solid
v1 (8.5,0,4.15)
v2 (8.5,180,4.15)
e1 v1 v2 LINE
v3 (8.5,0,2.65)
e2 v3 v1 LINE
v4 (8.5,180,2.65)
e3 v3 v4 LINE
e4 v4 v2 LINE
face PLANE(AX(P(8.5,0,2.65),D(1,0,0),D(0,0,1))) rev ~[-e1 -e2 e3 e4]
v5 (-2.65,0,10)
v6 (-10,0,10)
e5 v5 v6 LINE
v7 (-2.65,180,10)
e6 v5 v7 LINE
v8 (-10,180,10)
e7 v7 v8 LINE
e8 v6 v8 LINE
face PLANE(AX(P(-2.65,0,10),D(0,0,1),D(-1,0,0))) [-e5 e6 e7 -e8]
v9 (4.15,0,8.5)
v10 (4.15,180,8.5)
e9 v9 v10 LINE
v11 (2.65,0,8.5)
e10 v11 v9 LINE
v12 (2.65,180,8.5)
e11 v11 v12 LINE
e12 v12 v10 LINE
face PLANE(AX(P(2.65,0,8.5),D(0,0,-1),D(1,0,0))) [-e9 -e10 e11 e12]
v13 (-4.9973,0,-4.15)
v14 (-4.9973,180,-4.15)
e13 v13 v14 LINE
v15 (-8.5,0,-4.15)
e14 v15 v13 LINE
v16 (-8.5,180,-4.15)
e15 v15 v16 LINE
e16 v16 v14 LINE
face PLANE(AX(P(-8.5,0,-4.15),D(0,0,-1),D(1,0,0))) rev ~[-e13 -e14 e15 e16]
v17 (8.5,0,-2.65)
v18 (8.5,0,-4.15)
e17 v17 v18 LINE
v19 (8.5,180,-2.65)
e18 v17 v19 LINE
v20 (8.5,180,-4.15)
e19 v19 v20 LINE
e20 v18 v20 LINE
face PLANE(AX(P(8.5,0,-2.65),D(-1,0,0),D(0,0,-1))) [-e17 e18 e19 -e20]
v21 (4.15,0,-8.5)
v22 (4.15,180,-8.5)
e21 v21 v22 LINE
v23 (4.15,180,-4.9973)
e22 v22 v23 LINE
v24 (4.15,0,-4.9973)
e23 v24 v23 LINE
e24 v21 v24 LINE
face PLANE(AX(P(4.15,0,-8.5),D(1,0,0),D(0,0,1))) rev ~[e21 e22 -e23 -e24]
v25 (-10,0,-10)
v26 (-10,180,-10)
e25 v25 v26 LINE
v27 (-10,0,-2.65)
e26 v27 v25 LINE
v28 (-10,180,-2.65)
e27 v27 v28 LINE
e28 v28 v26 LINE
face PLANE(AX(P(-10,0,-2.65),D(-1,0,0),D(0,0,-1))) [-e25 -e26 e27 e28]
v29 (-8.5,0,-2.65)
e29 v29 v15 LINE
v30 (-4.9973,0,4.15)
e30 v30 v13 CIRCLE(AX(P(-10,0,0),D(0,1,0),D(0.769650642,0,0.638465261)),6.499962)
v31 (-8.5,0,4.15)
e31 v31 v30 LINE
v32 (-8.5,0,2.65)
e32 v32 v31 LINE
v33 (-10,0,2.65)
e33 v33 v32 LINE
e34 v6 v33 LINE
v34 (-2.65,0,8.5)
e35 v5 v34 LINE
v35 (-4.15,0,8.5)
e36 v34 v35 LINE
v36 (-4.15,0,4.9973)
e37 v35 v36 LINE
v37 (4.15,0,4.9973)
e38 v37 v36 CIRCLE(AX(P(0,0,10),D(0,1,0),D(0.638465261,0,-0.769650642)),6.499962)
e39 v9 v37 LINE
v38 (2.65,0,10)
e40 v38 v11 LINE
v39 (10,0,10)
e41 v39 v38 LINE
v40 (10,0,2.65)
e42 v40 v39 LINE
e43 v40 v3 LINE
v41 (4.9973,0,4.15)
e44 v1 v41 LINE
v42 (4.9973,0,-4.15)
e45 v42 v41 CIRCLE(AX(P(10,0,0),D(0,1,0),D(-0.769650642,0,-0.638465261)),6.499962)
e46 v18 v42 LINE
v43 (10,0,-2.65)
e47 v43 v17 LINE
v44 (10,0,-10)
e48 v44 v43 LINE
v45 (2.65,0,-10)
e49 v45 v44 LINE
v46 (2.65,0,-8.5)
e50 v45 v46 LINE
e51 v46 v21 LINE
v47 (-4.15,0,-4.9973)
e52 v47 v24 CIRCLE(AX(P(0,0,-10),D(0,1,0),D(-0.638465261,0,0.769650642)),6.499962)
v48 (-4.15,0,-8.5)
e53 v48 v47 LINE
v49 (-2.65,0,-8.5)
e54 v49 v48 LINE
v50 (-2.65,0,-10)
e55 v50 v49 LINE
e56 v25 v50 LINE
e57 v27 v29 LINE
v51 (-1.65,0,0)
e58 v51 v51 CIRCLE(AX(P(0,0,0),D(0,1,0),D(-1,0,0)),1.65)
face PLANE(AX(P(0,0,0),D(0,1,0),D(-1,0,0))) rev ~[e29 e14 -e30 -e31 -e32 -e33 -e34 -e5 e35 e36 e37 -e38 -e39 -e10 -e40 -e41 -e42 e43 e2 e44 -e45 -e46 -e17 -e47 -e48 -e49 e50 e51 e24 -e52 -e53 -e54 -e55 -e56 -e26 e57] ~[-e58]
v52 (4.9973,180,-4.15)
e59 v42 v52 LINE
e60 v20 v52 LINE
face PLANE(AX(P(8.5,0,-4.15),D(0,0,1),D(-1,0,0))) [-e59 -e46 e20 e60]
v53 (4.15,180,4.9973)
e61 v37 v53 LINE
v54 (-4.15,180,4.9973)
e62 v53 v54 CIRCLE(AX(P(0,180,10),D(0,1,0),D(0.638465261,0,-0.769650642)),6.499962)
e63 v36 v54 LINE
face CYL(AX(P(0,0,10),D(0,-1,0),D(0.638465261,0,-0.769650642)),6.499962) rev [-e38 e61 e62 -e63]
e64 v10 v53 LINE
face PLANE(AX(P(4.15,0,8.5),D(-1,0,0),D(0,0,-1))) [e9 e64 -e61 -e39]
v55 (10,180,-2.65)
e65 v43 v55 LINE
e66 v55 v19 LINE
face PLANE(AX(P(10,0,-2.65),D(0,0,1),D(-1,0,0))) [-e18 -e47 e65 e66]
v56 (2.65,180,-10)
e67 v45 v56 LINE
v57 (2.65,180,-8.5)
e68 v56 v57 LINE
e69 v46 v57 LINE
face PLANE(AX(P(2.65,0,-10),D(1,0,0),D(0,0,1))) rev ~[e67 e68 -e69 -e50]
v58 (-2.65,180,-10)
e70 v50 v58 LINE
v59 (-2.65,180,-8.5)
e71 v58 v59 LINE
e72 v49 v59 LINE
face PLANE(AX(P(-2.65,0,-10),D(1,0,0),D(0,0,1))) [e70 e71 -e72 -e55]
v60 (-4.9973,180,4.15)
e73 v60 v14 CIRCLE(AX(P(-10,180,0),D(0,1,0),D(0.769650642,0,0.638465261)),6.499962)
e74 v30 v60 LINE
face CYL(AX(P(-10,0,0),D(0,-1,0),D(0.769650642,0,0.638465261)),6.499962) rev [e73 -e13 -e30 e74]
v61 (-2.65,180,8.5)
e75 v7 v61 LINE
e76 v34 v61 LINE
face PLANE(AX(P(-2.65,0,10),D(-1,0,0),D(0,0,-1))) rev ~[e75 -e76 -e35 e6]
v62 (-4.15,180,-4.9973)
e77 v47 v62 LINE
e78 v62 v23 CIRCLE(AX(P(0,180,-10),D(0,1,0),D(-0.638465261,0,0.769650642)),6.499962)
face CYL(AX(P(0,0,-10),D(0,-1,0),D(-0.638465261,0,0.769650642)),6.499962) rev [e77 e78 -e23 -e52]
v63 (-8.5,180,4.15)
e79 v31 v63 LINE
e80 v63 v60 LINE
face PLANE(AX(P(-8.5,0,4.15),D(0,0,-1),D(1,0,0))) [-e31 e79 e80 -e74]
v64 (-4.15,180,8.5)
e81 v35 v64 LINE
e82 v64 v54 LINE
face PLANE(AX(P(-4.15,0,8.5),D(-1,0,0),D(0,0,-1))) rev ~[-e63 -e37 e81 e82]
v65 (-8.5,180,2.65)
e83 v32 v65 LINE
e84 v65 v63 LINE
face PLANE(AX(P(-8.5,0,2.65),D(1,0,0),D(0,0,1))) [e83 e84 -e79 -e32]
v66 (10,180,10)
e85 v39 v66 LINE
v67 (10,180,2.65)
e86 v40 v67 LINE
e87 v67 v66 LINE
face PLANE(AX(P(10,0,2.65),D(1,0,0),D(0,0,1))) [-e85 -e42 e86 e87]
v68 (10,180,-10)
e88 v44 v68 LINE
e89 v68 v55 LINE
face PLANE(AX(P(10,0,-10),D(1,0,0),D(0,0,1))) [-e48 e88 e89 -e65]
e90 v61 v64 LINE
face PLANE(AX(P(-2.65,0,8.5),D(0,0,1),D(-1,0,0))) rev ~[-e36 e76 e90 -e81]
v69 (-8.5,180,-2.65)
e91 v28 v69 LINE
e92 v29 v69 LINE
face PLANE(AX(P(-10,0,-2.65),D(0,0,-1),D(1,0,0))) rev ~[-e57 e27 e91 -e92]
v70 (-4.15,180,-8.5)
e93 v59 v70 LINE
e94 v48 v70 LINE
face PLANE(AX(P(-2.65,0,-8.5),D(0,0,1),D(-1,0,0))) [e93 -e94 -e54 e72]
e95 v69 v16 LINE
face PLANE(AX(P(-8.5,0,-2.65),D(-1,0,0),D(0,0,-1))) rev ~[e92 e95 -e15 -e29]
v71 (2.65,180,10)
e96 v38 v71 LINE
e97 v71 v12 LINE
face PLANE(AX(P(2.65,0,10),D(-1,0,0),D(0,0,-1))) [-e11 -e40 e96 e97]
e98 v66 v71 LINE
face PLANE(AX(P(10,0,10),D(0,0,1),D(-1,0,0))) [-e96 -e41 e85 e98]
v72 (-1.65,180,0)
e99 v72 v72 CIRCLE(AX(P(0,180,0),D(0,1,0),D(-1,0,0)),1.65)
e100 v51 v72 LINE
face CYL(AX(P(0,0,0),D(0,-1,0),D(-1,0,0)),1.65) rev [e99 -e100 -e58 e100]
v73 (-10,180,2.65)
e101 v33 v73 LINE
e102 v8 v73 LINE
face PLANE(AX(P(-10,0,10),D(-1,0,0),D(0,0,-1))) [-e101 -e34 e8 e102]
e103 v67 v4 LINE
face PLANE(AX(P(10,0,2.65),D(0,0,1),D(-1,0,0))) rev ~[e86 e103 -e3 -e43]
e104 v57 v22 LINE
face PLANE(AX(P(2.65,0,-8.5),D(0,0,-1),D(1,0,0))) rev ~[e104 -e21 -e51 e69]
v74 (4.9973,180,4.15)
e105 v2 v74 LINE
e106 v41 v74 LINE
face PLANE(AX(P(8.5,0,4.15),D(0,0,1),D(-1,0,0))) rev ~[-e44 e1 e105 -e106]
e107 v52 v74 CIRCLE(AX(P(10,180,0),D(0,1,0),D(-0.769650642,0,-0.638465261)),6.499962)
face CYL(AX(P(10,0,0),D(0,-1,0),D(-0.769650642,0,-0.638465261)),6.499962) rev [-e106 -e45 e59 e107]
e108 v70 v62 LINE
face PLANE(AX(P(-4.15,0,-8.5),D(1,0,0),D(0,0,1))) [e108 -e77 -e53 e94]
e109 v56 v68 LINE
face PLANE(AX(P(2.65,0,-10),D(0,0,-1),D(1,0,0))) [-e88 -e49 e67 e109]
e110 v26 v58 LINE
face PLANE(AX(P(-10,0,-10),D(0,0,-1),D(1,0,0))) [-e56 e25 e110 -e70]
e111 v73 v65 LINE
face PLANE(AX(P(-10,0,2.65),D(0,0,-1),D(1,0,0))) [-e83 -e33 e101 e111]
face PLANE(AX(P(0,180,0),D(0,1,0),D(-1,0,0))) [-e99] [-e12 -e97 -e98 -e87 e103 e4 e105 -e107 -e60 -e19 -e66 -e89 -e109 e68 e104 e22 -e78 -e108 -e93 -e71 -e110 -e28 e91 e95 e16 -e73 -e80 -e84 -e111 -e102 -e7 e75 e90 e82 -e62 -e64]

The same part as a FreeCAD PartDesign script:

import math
import FreeCAD as App
import Part
import Sketcher

V = App.Vector
Q = App.Units.Quantity

doc = App.newDocument("Part")
body = doc.addObject("PartDesign::Body", "Body")

sketch1 = body.newObject("Sketcher::SketchObject", "Sketch")
sketch1.AttachmentSupport = (doc.getObject("XZ_Plane"), [""])
sketch1.MapMode = "FlatFace"
sketch1.addGeometry([
    Part.LineSegment(V(-10, 2.65, 0), V(-10, 10, 0)),
    Part.LineSegment(V(-10, 10, 0), V(-2.65, 10, 0)),
    Part.LineSegment(V(-2.65, 10, 0), V(-2.65, 8.5, 0)),
    Part.LineSegment(V(-2.65, 8.5, 0), V(-4.15, 8.5, 0)),
    Part.LineSegment(V(-4.15, 8.5, 0), V(-4.15, 4.9973, 0)),
    Part.ArcOfCircle(Part.Circle(V(0, 10, 0), V(0, 0, 1), 6.499962), math.radians(-129.677473), math.radians(-50.322527)),
    Part.LineSegment(V(4.15, 4.9973, 0), V(4.15, 8.5, 0)),
    Part.LineSegment(V(4.15, 8.5, 0), V(2.65, 8.5, 0)),
    Part.LineSegment(V(2.65, 8.5, 0), V(2.65, 10, 0)),
    Part.LineSegment(V(2.65, 10, 0), V(10, 10, 0)),
    Part.LineSegment(V(10, 10, 0), V(10, 2.65, 0)),
    Part.LineSegment(V(10, 2.65, 0), V(8.5, 2.65, 0)),
    Part.LineSegment(V(8.5, 2.65, 0), V(8.5, 4.15, 0)),
    Part.LineSegment(V(8.5, 4.15, 0), V(4.9973, 4.15, 0)),
    Part.ArcOfCircle(Part.Circle(V(10, 0, 0), V(0, 0, 1), 6.499962), math.radians(140.322527), math.radians(219.677473)),
    Part.LineSegment(V(4.9973, -4.15, 0), V(8.5, -4.15, 0)),
    Part.LineSegment(V(8.5, -4.15, 0), V(8.5, -2.65, 0)),
    Part.LineSegment(V(8.5, -2.65, 0), V(10, -2.65, 0)),
    Part.LineSegment(V(10, -2.65, 0), V(10, -10, 0)),
    Part.LineSegment(V(10, -10, 0), V(2.65, -10, 0)),
    Part.LineSegment(V(2.65, -10, 0), V(2.65, -8.5, 0)),
    Part.LineSegment(V(2.65, -8.5, 0), V(4.15, -8.5, 0)),
    Part.LineSegment(V(4.15, -8.5, 0), V(4.15, -4.9973, 0)),
    Part.ArcOfCircle(Part.Circle(V(0, -10, 0), V(0, 0, 1), 6.499962), math.radians(50.322527), math.radians(129.677473)),
    Part.LineSegment(V(-4.15, -4.9973, 0), V(-4.15, -8.5, 0)),
    Part.LineSegment(V(-4.15, -8.5, 0), V(-2.65, -8.5, 0)),
    Part.LineSegment(V(-2.65, -8.5, 0), V(-2.65, -10, 0)),
    Part.LineSegment(V(-2.65, -10, 0), V(-10, -10, 0)),
    Part.LineSegment(V(-10, -10, 0), V(-10, -2.65, 0)),
    Part.LineSegment(V(-10, -2.65, 0), V(-8.5, -2.65, 0)),
    Part.LineSegment(V(-8.5, -2.65, 0), V(-8.5, -4.15, 0)),
    Part.LineSegment(V(-8.5, -4.15, 0), V(-4.9973, -4.15, 0)),
    Part.ArcOfCircle(Part.Circle(V(-10, 0, 0), V(0, 0, 1), 6.499962), math.radians(-39.677473), math.radians(39.677473)),
    Part.LineSegment(V(-4.9973, 4.15, 0), V(-8.5, 4.15, 0)),
    Part.LineSegment(V(-8.5, 4.15, 0), V(-8.5, 2.65, 0)),
    Part.LineSegment(V(-8.5, 2.65, 0), V(-10, 2.65, 0)),
    Part.Circle(V(0, 0, 0), V(0, 0, 1), 1.65),
], False)
sketch1.addConstraint([
    Sketcher.Constraint("Coincident", 0, 2, 1, 1),
    Sketcher.Constraint("Coincident", 1, 2, 2, 1),
    Sketcher.Constraint("Coincident", 2, 2, 3, 1),
    Sketcher.Constraint("Coincident", 3, 2, 4, 1),
    Sketcher.Constraint("Coincident", 4, 2, 5, 1),
    Sketcher.Constraint("Coincident", 5, 2, 6, 1),
    Sketcher.Constraint("Coincident", 6, 2, 7, 1),
    Sketcher.Constraint("Coincident", 7, 2, 8, 1),
    Sketcher.Constraint("Coincident", 8, 2, 9, 1),
    Sketcher.Constraint("Coincident", 9, 2, 10, 1),
    Sketcher.Constraint("Coincident", 10, 2, 11, 1),
    Sketcher.Constraint("Coincident", 11, 2, 12, 1),
    Sketcher.Constraint("Coincident", 12, 2, 13, 1),
    Sketcher.Constraint("Coincident", 13, 2, 14, 1),
    Sketcher.Constraint("Coincident", 14, 2, 15, 1),
    Sketcher.Constraint("Coincident", 15, 2, 16, 1),
    Sketcher.Constraint("Coincident", 16, 2, 17, 1),
    Sketcher.Constraint("Coincident", 17, 2, 18, 1),
    Sketcher.Constraint("Coincident", 18, 2, 19, 1),
    Sketcher.Constraint("Coincident", 19, 2, 20, 1),
    Sketcher.Constraint("Coincident", 20, 2, 21, 1),
    Sketcher.Constraint("Coincident", 21, 2, 22, 1),
    Sketcher.Constraint("Coincident", 22, 2, 23, 1),
    Sketcher.Constraint("Coincident", 23, 2, 24, 1),
    Sketcher.Constraint("Coincident", 24, 2, 25, 1),
    Sketcher.Constraint("Coincident", 25, 2, 26, 1),
    Sketcher.Constraint("Coincident", 26, 2, 27, 1),
    Sketcher.Constraint("Coincident", 27, 2, 28, 1),
    Sketcher.Constraint("Coincident", 28, 2, 29, 1),
    Sketcher.Constraint("Coincident", 29, 2, 30, 1),
    Sketcher.Constraint("Coincident", 30, 2, 31, 1),
    Sketcher.Constraint("Coincident", 31, 2, 32, 1),
    Sketcher.Constraint("Coincident", 32, 2, 33, 1),
    Sketcher.Constraint("Coincident", 33, 2, 34, 1),
    Sketcher.Constraint("Coincident", 34, 2, 35, 1),
    Sketcher.Constraint("Coincident", 35, 2, 0, 1),
    Sketcher.Constraint("Vertical", 0),
    Sketcher.Constraint("Horizontal", 1),
    Sketcher.Constraint("Vertical", 2),
    Sketcher.Constraint("Horizontal", 3),
    Sketcher.Constraint("Vertical", 4),
    Sketcher.Constraint("Vertical", 6),
    Sketcher.Constraint("Horizontal", 7),
    Sketcher.Constraint("Vertical", 8),
    Sketcher.Constraint("Horizontal", 9),
    Sketcher.Constraint("Vertical", 10),
    Sketcher.Constraint("Horizontal", 11),
    Sketcher.Constraint("Vertical", 12),
    Sketcher.Constraint("Horizontal", 13),
    Sketcher.Constraint("Horizontal", 15),
    Sketcher.Constraint("Vertical", 16),
    Sketcher.Constraint("Horizontal", 17),
    Sketcher.Constraint("Vertical", 18),
    Sketcher.Constraint("Horizontal", 19),
    Sketcher.Constraint("Vertical", 20),
    Sketcher.Constraint("Horizontal", 21),
    Sketcher.Constraint("Vertical", 22),
    Sketcher.Constraint("Vertical", 24),
    Sketcher.Constraint("Horizontal", 25),
    Sketcher.Constraint("Vertical", 26),
    Sketcher.Constraint("Horizontal", 27),
    Sketcher.Constraint("Vertical", 28),
    Sketcher.Constraint("Horizontal", 29),
    Sketcher.Constraint("Vertical", 30),
    Sketcher.Constraint("Horizontal", 31),
    Sketcher.Constraint("Horizontal", 33),
    Sketcher.Constraint("Vertical", 34),
    Sketcher.Constraint("Horizontal", 35),
    Sketcher.Constraint("Coincident", 36, 3, -1, 1),
    Sketcher.Constraint("Equal", 5, 14),
    Sketcher.Constraint("Equal", 14, 23),
    Sketcher.Constraint("Equal", 23, 32),
    Sketcher.Constraint("Symmetric", 5, 3, 23, 3, -1, 1),
    Sketcher.Constraint("Symmetric", 14, 3, 32, 3, -1, 1),
    Sketcher.Constraint("Symmetric", 0, 2, 18, 2, -1, 1),
    Sketcher.Constraint("Symmetric", 2, 2, 20, 2, -1, 1),
    Sketcher.Constraint("Symmetric", 6, 2, 24, 2, -1, 1),
    Sketcher.Constraint("Symmetric", 8, 2, 26, 2, -1, 1),
    Sketcher.Constraint("Symmetric", 10, 2, 28, 2, -1, 1),
    Sketcher.Constraint("Symmetric", 12, 2, 30, 2, -1, 1),
    Sketcher.Constraint("Symmetric", 15, 2, 33, 2, -1, 1),
    Sketcher.Constraint("Symmetric", 4, 2, 5, 2, -2),
    Sketcher.Constraint("Symmetric", 2, 2, 7, 2, -2),
    Sketcher.Constraint("Symmetric", 0, 2, 9, 2, -2),
    Sketcher.Constraint("Symmetric", 16, 2, 29, 2, -2),
    Sketcher.Constraint("Symmetric", 14, 2, 31, 2, -2),
    Sketcher.Constraint("Horizontal", 5, 3, 0, 2),
    Sketcher.Constraint("Horizontal", 22, 2, 23, 2),
    Sketcher.Constraint("Horizontal", 11, 2, 34, 2),
    Sketcher.Constraint("Vertical", 32, 3, 0, 2),
    Sketcher.Constraint("Equal", 7, 11),
    Sketcher.Constraint("Equal", 27, 0),
    Sketcher.Constraint("Equal", 35, 2),
    Sketcher.Constraint("Equal", 33, 4),
    Sketcher.Constraint("Equal", 8, 12),
    Sketcher.Constraint("Diameter", 36, Q("3.3 mm")),
    Sketcher.Constraint("Radius", 5, Q("6.5 mm")),
    Sketcher.Constraint("DistanceX", 3, 2, 3, 1, Q("1.5 mm")),
    Sketcher.Constraint("DistanceY", 23, 3, 5, 3, Q("20 mm")),
    Sketcher.Constraint("DistanceX", 1, 2, -1, 1, Q("2.65 mm")),
])
pad1 = body.newObject("PartDesign::Pad", "Pad")
pad1.Profile = sketch1
pad1.Length = 180
pad1.Reversed = True

doc.recompute()
